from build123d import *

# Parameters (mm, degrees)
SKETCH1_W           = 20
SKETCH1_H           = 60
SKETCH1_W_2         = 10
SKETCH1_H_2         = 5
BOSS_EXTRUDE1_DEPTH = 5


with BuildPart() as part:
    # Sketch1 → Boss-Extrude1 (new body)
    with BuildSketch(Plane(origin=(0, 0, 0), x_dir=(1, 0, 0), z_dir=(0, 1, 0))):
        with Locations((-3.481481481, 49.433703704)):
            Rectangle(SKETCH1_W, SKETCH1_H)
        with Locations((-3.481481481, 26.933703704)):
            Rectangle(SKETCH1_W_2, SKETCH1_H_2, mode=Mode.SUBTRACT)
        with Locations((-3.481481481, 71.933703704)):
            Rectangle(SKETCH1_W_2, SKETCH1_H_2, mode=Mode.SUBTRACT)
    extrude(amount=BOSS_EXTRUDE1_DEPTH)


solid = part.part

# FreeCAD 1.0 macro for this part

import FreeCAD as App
import Part
import Sketcher
from FreeCAD import Vector

doc = App.newDocument("Part")
params = doc.addObject("Spreadsheet::Sheet", "Params")
for row, (alias, value) in enumerate([
    ("sketch1_width", "20 mm"),
    ("sketch1_width2", "10 mm"),
    ("sketch1_height", "60 mm"),
    ("sketch1_height2", "5 mm"),
    ("pad1_length", "5 mm"),
], start=1):
    params.set(f"A{row}", alias)
    params.set(f"B{row}", "=" + value)
    params.setAlias(f"B{row}", alias)

body = doc.addObject("PartDesign::Body", "Body")

sketch1 = body.newObject("Sketcher::SketchObject", "Sketch")
sketch1.AttachmentSupport = (doc.getObject("XZ_Plane"), [""])
sketch1.MapMode = "FlatFace"
sketch1.addGeometry(Part.LineSegment(Vector(-13.481481, -79.433704, 0), Vector(-13.481481, -19.433704, 0)), False)
sketch1.addGeometry(Part.LineSegment(Vector(-13.481481, -19.433704, 0), Vector(6.518519, -19.433704, 0)), False)
sketch1.addGeometry(Part.LineSegment(Vector(6.518519, -19.433704, 0), Vector(6.518519, -79.433704, 0)), False)
sketch1.addGeometry(Part.LineSegment(Vector(6.518519, -79.433704, 0), Vector(-13.481481, -79.433704, 0)), False)
sketch1.addGeometry(Part.LineSegment(Vector(1.518519, -24.433704, 0), Vector(-8.481481, -24.433704, 0)), False)
sketch1.addGeometry(Part.LineSegment(Vector(-8.481481, -24.433704, 0), Vector(-8.481481, -29.433704, 0)), False)
sketch1.addGeometry(Part.LineSegment(Vector(-8.481481, -29.433704, 0), Vector(1.518519, -29.433704, 0)), False)
sketch1.addGeometry(Part.LineSegment(Vector(1.518519, -29.433704, 0), Vector(1.518519, -24.433704, 0)), False)
sketch1.addGeometry(Part.LineSegment(Vector(1.518519, -69.433704, 0), Vector(-8.481481, -69.433704, 0)), False)
sketch1.addGeometry(Part.LineSegment(Vector(-8.481481, -69.433704, 0), Vector(-8.481481, -74.433704, 0)), False)
sketch1.addGeometry(Part.LineSegment(Vector(-8.481481, -74.433704, 0), Vector(1.518519, -74.433704, 0)), False)
sketch1.addGeometry(Part.LineSegment(Vector(1.518519, -74.433704, 0), Vector(1.518519, -69.433704, 0)), False)
sketch1.addConstraint(Sketcher.Constraint("Coincident", 0, 2, 1, 1))
sketch1.addConstraint(Sketcher.Constraint("Coincident", 1, 2, 2, 1))
sketch1.addConstraint(Sketcher.Constraint("Coincident", 2, 2, 3, 1))
sketch1.addConstraint(Sketcher.Constraint("Coincident", 3, 2, 0, 1))
sketch1.addConstraint(Sketcher.Constraint("Coincident", 4, 2, 5, 1))
sketch1.addConstraint(Sketcher.Constraint("Coincident", 5, 2, 6, 1))
sketch1.addConstraint(Sketcher.Constraint("Coincident", 6, 2, 7, 1))
sketch1.addConstraint(Sketcher.Constraint("Coincident", 7, 2, 4, 1))
sketch1.addConstraint(Sketcher.Constraint("Coincident", 8, 2, 9, 1))
sketch1.addConstraint(Sketcher.Constraint("Coincident", 9, 2, 10, 1))
sketch1.addConstraint(Sketcher.Constraint("Coincident", 10, 2, 11, 1))
sketch1.addConstraint(Sketcher.Constraint("Coincident", 11, 2, 8, 1))
sketch1.addConstraint(Sketcher.Constraint("Vertical", 0))
sketch1.addConstraint(Sketcher.Constraint("Horizontal", 1))
sketch1.addConstraint(Sketcher.Constraint("Vertical", 2))
sketch1.addConstraint(Sketcher.Constraint("Horizontal", 3))
sketch1.addConstraint(Sketcher.Constraint("Horizontal", 4))
sketch1.addConstraint(Sketcher.Constraint("Vertical", 5))
sketch1.addConstraint(Sketcher.Constraint("Horizontal", 6))
sketch1.addConstraint(Sketcher.Constraint("Vertical", 7))
sketch1.addConstraint(Sketcher.Constraint("Horizontal", 8))
sketch1.addConstraint(Sketcher.Constraint("Vertical", 9))
sketch1.addConstraint(Sketcher.Constraint("Horizontal", 10))
sketch1.addConstraint(Sketcher.Constraint("Vertical", 11))
sketch1.addConstraint(Sketcher.Constraint("Vertical", 5, 2, 8, 2))
sketch1.addConstraint(Sketcher.Constraint("Vertical", 7, 2, 10, 2))
sketch1.addConstraint(Sketcher.Constraint("Equal", 7, 9))
sketch1.addConstraint(Sketcher.Constraint("DistanceX", 1, 1, 1, 2, 20.0))
sketch1.addConstraint(Sketcher.Constraint("DistanceX", 4, 2, 4, 1, 10.0))
sketch1.addConstraint(Sketcher.Constraint("DistanceY", 0, 1, 0, 2, 60.0))
sketch1.addConstraint(Sketcher.Constraint("DistanceY", 5, 2, 5, 1, 5.0))
sketch1.addConstraint(Sketcher.Constraint("DistanceX", 0, 2, 4, 2, 5.0))
sketch1.addConstraint(Sketcher.Constraint("DistanceY", 4, 2, 0, 2, 5.0))
sketch1.addConstraint(Sketcher.Constraint("DistanceY", 3, 2, 8, 2, 10.0))
sketch1.addConstraint(Sketcher.Constraint("DistanceX", 0, 2, -1, 1, 13.481481))
sketch1.addConstraint(Sketcher.Constraint("DistanceY", 0, 2, -1, 1, 19.433704))
sketch1.setExpression("Constraints[27]", "Params.sketch1_width")
sketch1.setExpression("Constraints[28]", "Params.sketch1_width2")
sketch1.setExpression("Constraints[29]", "Params.sketch1_height")
sketch1.setExpression("Constraints[30]", "Params.sketch1_height2")
pad1 = body.newObject("PartDesign::Pad", "Pad")
pad1.Profile = sketch1
pad1.setExpression("Length", "Params.pad1_length")
pad1.Reversed = True

doc.recompute()
